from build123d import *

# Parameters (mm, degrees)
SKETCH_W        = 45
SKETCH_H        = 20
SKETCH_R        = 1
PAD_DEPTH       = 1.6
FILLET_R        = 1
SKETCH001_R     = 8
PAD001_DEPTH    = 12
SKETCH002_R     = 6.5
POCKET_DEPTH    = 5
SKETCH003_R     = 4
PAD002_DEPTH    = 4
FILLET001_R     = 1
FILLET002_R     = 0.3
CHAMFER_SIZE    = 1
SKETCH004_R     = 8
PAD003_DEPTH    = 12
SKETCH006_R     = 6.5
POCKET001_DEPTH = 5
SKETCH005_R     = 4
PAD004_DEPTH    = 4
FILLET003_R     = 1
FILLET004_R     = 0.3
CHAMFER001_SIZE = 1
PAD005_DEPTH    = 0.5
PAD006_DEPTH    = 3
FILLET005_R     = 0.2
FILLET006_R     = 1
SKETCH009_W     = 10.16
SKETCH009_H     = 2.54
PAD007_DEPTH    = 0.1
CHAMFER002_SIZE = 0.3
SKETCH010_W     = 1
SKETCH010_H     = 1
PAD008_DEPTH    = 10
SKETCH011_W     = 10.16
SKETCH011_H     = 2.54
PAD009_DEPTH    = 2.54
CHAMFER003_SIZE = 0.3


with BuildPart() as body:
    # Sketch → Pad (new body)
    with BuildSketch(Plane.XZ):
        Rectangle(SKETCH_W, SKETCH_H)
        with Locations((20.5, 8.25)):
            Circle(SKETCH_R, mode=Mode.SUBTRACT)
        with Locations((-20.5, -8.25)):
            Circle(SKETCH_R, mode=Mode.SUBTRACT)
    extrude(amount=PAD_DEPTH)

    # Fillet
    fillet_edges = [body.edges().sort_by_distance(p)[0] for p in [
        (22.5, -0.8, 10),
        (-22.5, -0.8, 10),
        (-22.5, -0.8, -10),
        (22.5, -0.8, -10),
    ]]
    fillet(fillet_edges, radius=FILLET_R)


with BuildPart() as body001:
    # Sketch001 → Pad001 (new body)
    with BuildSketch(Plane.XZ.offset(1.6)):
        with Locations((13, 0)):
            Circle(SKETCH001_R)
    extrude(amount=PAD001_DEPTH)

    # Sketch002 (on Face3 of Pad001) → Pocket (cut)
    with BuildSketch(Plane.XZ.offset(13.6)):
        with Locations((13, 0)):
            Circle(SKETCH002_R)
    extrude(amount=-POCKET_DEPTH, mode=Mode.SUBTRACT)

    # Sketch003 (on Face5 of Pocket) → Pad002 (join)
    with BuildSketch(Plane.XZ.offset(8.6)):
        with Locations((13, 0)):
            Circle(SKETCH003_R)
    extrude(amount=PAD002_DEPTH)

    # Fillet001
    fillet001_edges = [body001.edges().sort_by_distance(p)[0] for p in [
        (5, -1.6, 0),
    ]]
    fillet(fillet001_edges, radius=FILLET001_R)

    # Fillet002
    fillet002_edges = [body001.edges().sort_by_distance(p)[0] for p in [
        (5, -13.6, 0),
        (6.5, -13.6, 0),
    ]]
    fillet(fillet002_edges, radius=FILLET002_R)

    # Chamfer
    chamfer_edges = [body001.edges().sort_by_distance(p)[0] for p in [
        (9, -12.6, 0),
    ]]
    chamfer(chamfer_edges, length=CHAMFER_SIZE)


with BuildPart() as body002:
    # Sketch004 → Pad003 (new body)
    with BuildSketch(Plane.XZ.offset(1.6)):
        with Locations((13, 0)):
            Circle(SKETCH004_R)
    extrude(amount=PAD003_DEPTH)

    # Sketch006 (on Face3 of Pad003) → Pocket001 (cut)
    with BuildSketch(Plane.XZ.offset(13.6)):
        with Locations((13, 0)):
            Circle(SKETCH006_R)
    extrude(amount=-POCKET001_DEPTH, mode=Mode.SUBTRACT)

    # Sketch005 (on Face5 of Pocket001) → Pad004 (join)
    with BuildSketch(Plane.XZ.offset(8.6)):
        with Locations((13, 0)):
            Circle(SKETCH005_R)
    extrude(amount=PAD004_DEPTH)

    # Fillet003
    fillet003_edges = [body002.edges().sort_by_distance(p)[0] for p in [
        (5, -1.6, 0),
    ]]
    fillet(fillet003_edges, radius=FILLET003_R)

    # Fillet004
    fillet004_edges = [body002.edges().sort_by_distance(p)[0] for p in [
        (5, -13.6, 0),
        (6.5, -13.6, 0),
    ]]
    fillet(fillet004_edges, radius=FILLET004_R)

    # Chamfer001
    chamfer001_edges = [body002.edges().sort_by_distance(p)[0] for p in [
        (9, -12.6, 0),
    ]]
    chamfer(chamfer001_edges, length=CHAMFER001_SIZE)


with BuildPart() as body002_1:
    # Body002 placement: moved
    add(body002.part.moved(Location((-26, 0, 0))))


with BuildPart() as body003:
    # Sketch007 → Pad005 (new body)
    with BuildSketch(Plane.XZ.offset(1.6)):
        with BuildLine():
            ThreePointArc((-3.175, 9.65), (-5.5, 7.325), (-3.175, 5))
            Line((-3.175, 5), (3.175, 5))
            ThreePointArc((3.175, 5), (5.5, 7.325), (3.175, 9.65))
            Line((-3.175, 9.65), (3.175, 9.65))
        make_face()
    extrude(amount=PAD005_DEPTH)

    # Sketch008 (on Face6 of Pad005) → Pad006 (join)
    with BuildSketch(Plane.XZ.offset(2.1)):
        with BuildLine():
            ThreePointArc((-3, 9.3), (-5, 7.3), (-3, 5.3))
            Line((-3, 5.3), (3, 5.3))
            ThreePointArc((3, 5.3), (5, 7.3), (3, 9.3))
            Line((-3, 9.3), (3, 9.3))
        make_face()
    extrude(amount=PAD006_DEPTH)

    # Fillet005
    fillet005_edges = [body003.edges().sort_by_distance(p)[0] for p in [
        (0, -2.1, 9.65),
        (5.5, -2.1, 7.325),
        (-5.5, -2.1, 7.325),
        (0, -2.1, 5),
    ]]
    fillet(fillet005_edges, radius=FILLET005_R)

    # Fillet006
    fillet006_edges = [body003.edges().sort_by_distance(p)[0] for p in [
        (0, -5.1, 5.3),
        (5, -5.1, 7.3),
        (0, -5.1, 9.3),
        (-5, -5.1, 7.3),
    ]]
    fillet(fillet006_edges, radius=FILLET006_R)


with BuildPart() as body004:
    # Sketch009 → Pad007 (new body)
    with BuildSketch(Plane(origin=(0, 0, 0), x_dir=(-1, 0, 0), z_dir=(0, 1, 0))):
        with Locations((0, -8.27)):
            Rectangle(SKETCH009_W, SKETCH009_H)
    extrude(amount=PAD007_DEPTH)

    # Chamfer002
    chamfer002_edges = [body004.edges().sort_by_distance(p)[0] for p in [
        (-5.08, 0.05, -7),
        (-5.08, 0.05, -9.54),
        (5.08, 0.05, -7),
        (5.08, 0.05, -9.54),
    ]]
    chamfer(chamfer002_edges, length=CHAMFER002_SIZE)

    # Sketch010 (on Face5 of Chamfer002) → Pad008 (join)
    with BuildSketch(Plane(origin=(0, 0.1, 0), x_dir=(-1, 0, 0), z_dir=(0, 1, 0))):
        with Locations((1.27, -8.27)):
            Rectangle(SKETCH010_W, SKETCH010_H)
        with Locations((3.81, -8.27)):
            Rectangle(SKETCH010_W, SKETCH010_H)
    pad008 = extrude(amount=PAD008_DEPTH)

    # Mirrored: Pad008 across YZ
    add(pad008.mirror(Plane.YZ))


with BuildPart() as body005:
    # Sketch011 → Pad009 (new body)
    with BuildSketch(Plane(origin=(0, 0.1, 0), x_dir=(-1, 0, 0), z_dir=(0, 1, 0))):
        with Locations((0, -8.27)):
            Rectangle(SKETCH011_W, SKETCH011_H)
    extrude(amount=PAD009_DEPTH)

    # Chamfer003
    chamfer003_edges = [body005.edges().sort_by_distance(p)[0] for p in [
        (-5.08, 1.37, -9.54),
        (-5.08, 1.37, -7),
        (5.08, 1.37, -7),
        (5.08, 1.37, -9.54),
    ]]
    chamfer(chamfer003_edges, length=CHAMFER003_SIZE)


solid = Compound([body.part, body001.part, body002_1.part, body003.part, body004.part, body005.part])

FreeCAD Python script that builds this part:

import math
import FreeCAD as App
import Part
import Sketcher

V = App.Vector


def edges_at(feature, points):
    """Names of the edges that pass closest to the given points."""
    edges = feature.Shape.Edges
    near = lambda p: min(range(len(edges)), key=lambda i: edges[i].distToShape(Part.Vertex(*p))[0])
    return sorted({f"Edge{near(p) + 1}" for p in points})

doc = App.newDocument("Part")
body = doc.addObject("PartDesign::Body", "Body")

# Sketch on XZ plane
sketch1 = doc.addObject("Sketcher::SketchObject", "Sketch")
body.addObject(sketch1)
sketch1.AttachmentSupport = (doc.XZ_Plane, [""])
sketch1.MapMode = "FlatFace"
sketch1.addGeometry(Part.LineSegment(V(-22.5, 10, 0), V(-22.5, -10, 0)), False)
sketch1.addGeometry(Part.LineSegment(V(-22.5, -10, 0), V(22.5, -10, 0)), False)
sketch1.addGeometry(Part.LineSegment(V(22.5, -10, 0), V(22.5, 10, 0)), False)
sketch1.addGeometry(Part.LineSegment(V(22.5, 10, 0), V(-22.5, 10, 0)), False)
sketch1.addGeometry(Part.Circle(V(-20.5, -8.2, 0), V(0, 0, 1), 1), False)
sketch1.addGeometry(Part.Circle(V(20.5, 8.2, 0), V(0, 0, 1), 1), False)
sketch1.addConstraint(Sketcher.Constraint("Coincident", 0, 2, 1, 1))
sketch1.addConstraint(Sketcher.Constraint("Coincident", 1, 2, 2, 1))
sketch1.addConstraint(Sketcher.Constraint("Coincident", 2, 2, 3, 1))
sketch1.addConstraint(Sketcher.Constraint("Coincident", 3, 2, 0, 1))
sketch1.addConstraint(Sketcher.Constraint("Vertical", 0))
sketch1.addConstraint(Sketcher.Constraint("Horizontal", 1))
sketch1.addConstraint(Sketcher.Constraint("Vertical", 2))
sketch1.addConstraint(Sketcher.Constraint("Horizontal", 3))
sketch1.addConstraint(Sketcher.Constraint("Equal", 4, 5))
sketch1.addConstraint(Sketcher.Constraint("Symmetric", 4, 3, 5, 3, -1, 1))
sketch1.addConstraint(Sketcher.Constraint("Symmetric", 0, 2, 2, 2, -1, 1))
sketch1.addConstraint(Sketcher.Constraint("Diameter", 4, 2.0))
sketch1.addConstraint(Sketcher.Constraint("DistanceX", 1, 1, 1, 2, 45.0))
sketch1.addConstraint(Sketcher.Constraint("DistanceY", 0, 2, 0, 1, 20.0))
sketch1.addConstraint(Sketcher.Constraint("DistanceX", 4, 3, 5, 3, 41.0))
sketch1.addConstraint(Sketcher.Constraint("DistanceY", 4, 3, 5, 3, 16.5))
pad1 = doc.addObject("PartDesign::Pad", "Pad")
body.addObject(pad1)
pad1.Profile = sketch1
pad1.Length = 1.6
doc.recompute()

fillet = doc.addObject("PartDesign::Fillet", "Fillet")
body.addObject(fillet)
fillet.Base = (pad1, edges_at(pad1, [
    (22.5, -0.8, 10),
    (-22.5, -0.8, 10),
    (-22.5, -0.8, -10),
    (22.5, -0.8, -10),
]))
fillet.Radius = 1
body2 = doc.addObject("PartDesign::Body", "Body001")

# Sketch on XZ plane
sketch2 = doc.addObject("Sketcher::SketchObject", "Sketch001")
body2.addObject(sketch2)
sketch2.AttachmentSupport = (doc.getObject("XZ_Plane001"), [""])
sketch2.MapMode = "FlatFace"
sketch2.AttachmentOffset = App.Placement(V(0, 0, 1.6), App.Rotation())
sketch2.addGeometry(Part.Circle(V(13, 0, 0), V(0, 0, 1), 8), False)
sketch2.addConstraint(Sketcher.Constraint("PointOnObject", 0, 3, -1))
sketch2.addConstraint(Sketcher.Constraint("Diameter", 0, 16.0))
sketch2.addConstraint(Sketcher.Constraint("DistanceX", -1, 1, 0, 3, 13.0))
pad2 = doc.addObject("PartDesign::Pad", "Pad001")
body2.addObject(pad2)
pad2.Profile = sketch2
pad2.Length = 12

# Sketch on XZ plane
sketch3 = doc.addObject("Sketcher::SketchObject", "Sketch002")
body2.addObject(sketch3)
sketch3.AttachmentSupport = (doc.getObject("XZ_Plane001"), [""])
sketch3.MapMode = "FlatFace"
sketch3.AttachmentOffset = App.Placement(V(0, 0, 13.6), App.Rotation())
sketch3.addGeometry(Part.Circle(V(13, 0, 0), V(0, 0, 1), 6), False)
sketch3.addConstraint(Sketcher.Constraint("PointOnObject", 0, 3, -1))
sketch3.addConstraint(Sketcher.Constraint("Diameter", 0, 13.0))
sketch3.addConstraint(Sketcher.Constraint("DistanceX", -1, 1, 0, 3, 13.0))
pocket1 = doc.addObject("PartDesign::Pocket", "Pocket")
body2.addObject(pocket1)
pocket1.Profile = sketch3
pocket1.Length = 5

# Sketch on XZ plane
sketch4 = doc.addObject("Sketcher::SketchObject", "Sketch003")
body2.addObject(sketch4)
sketch4.AttachmentSupport = (doc.getObject("XZ_Plane001"), [""])
sketch4.MapMode = "FlatFace"
sketch4.AttachmentOffset = App.Placement(V(0, 0, 8.6), App.Rotation())
sketch4.addGeometry(Part.Circle(V(13, 0, 0), V(0, 0, 1), 4), False)
sketch4.addConstraint(Sketcher.Constraint("PointOnObject", 0, 3, -1))
sketch4.addConstraint(Sketcher.Constraint("Diameter", 0, 8.0))
sketch4.addConstraint(Sketcher.Constraint("DistanceX", -1, 1, 0, 3, 13.0))
pad3 = doc.addObject("PartDesign::Pad", "Pad002")
body2.addObject(pad3)
pad3.Profile = sketch4
pad3.Length = 4
doc.recompute()

fillet2 = doc.addObject("PartDesign::Fillet", "Fillet001")
body2.addObject(fillet2)
fillet2.Base = (pad3, edges_at(pad3, [(5, -1.6, 0)]))
fillet2.Radius = 1
doc.recompute()

fillet3 = doc.addObject("PartDesign::Fillet", "Fillet002")
body2.addObject(fillet3)
fillet3.Base = (fillet2, edges_at(fillet2, [(5, -13.6, 0), (6.5, -13.6, 0)]))
fillet3.Radius = 0.3
doc.recompute()

chamfer = doc.addObject("PartDesign::Chamfer", "Chamfer")
body2.addObject(chamfer)
chamfer.Base = (fillet3, edges_at(fillet3, [(9, -12.6, 0)]))
chamfer.Size = 1
body3 = doc.addObject("PartDesign::Body", "Body002")

# Sketch on XZ plane
sketch5 = doc.addObject("Sketcher::SketchObject", "Sketch004")
body3.addObject(sketch5)
sketch5.AttachmentSupport = (doc.getObject("XZ_Plane002"), [""])
sketch5.MapMode = "FlatFace"
sketch5.AttachmentOffset = App.Placement(V(0, 0, 1.6), App.Rotation())
sketch5.addGeometry(Part.Circle(V(13, 0, 0), V(0, 0, 1), 8), False)
sketch5.addConstraint(Sketcher.Constraint("PointOnObject", 0, 3, -1))
sketch5.addConstraint(Sketcher.Constraint("Diameter", 0, 16.0))
sketch5.addConstraint(Sketcher.Constraint("DistanceX", -1, 1, 0, 3, 13.0))
pad4 = doc.addObject("PartDesign::Pad", "Pad003")
body3.addObject(pad4)
pad4.Profile = sketch5
pad4.Length = 12

# Sketch on XZ plane
sketch6 = doc.addObject("Sketcher::SketchObject", "Sketch005")
body3.addObject(sketch6)
sketch6.AttachmentSupport = (doc.getObject("XZ_Plane002"), [""])
sketch6.MapMode = "FlatFace"
sketch6.AttachmentOffset = App.Placement(V(0, 0, 13.6), App.Rotation())
sketch6.addGeometry(Part.Circle(V(13, 0, 0), V(0, 0, 1), 6), False)
sketch6.addConstraint(Sketcher.Constraint("PointOnObject", 0, 3, -1))
sketch6.addConstraint(Sketcher.Constraint("Diameter", 0, 13.0))
sketch6.addConstraint(Sketcher.Constraint("DistanceX", -1, 1, 0, 3, 13.0))
pocket2 = doc.addObject("PartDesign::Pocket", "Pocket001")
body3.addObject(pocket2)
pocket2.Profile = sketch6
pocket2.Length = 5

# Sketch on XZ plane
sketch7 = doc.addObject("Sketcher::SketchObject", "Sketch006")
body3.addObject(sketch7)
sketch7.AttachmentSupport = (doc.getObject("XZ_Plane002"), [""])
sketch7.MapMode = "FlatFace"
sketch7.AttachmentOffset = App.Placement(V(0, 0, 8.6), App.Rotation())
sketch7.addGeometry(Part.Circle(V(13, 0, 0), V(0, 0, 1), 4), False)
sketch7.addConstraint(Sketcher.Constraint("PointOnObject", 0, 3, -1))
sketch7.addConstraint(Sketcher.Constraint("Diameter", 0, 8.0))
sketch7.addConstraint(Sketcher.Constraint("DistanceX", -1, 1, 0, 3, 13.0))
pad5 = doc.addObject("PartDesign::Pad", "Pad004")
body3.addObject(pad5)
pad5.Profile = sketch7
pad5.Length = 4
doc.recompute()

fillet4 = doc.addObject("PartDesign::Fillet", "Fillet003")
body3.addObject(fillet4)
fillet4.Base = (pad5, edges_at(pad5, [(5, -1.6, 0)]))
fillet4.Radius = 1
doc.recompute()

fillet5 = doc.addObject("PartDesign::Fillet", "Fillet004")
body3.addObject(fillet5)
fillet5.Base = (fillet4, edges_at(fillet4, [(5, -13.6, 0), (6.5, -13.6, 0)]))
fillet5.Radius = 0.3
doc.recompute()

chamfer2 = doc.addObject("PartDesign::Chamfer", "Chamfer001")
body3.addObject(chamfer2)
chamfer2.Base = (fillet5, edges_at(fillet5, [(9, -12.6, 0)]))
chamfer2.Size = 1
body4 = doc.addObject("PartDesign::Body", "Body003")
doc.recompute()

body3.Placement = App.Placement(V(-26, 0, 0), App.Rotation(V(0, 0, 1), 0))
boolean = doc.addObject("PartDesign::Boolean", "Boolean")
body4.addObject(boolean)
boolean.Type = "Fuse"
boolean.addObjects([body3])
body5 = doc.addObject("PartDesign::Body", "Body004")

# Sketch on XZ plane
sketch8 = doc.addObject("Sketcher::SketchObject", "Sketch007")
body5.addObject(sketch8)
sketch8.AttachmentSupport = (doc.getObject("XZ_Plane004"), [""])
sketch8.MapMode = "FlatFace"
sketch8.AttachmentOffset = App.Placement(V(0, 0, 1.6), App.Rotation())
sketch8.addGeometry(Part.ArcOfCircle(Part.Circle(V(-3.2, 7.3, 0), V(0, 0, 1), 2.3), math.radians(90), math.radians(270)), False)
sketch8.addGeometry(Part.LineSegment(V(-3.2, 5, 0), V(3.2, 5, 0)), False)
sketch8.addGeometry(Part.ArcOfCircle(Part.Circle(V(3.2, 7.3, 0), V(0, 0, 1), 2.3), math.radians(-90), math.radians(90)), False)
sketch8.addGeometry(Part.LineSegment(V(3.2, 9.7, 0), V(-3.2, 9.7, 0)), False)
sketch8.addConstraint(Sketcher.Constraint("Tangent", 0, 2, 1, 1))
sketch8.addConstraint(Sketcher.Constraint("Tangent", 1, 2, 2, 1))
sketch8.addConstraint(Sketcher.Constraint("Tangent", 2, 2, 3, 1))
sketch8.addConstraint(Sketcher.Constraint("Tangent", 3, 2, 0, 1))
sketch8.addConstraint(Sketcher.Constraint("Horizontal", 1))
sketch8.addConstraint(Sketcher.Constraint("Horizontal", 3))
sketch8.addConstraint(Sketcher.Constraint("DistanceY", -1, 1, 0, 2, 5.0))
sketch8.addConstraint(Sketcher.Constraint("Radius", 0, 2.325))
sketch8.addConstraint(Sketcher.Constraint("DistanceX", 1, 1, 1, 2, 6.35))
sketch8.addConstraint(Sketcher.Constraint("DistanceX", 0, 3, -1, 1, 3.175))
pad6 = doc.addObject("PartDesign::Pad", "Pad005")
body5.addObject(pad6)
pad6.Profile = sketch8
pad6.Length = 0.5

# Sketch on XZ plane
sketch9 = doc.addObject("Sketcher::SketchObject", "Sketch008")
body5.addObject(sketch9)
sketch9.AttachmentSupport = (doc.getObject("XZ_Plane004"), [""])
sketch9.MapMode = "FlatFace"
sketch9.AttachmentOffset = App.Placement(V(0, 0, 2.1), App.Rotation())
sketch9.addGeometry(Part.ArcOfCircle(Part.Circle(V(-3, 7.3, 0), V(0, 0, 1), 2), math.radians(90), math.radians(270)), False)
sketch9.addGeometry(Part.LineSegment(V(-3, 5.3, 0), V(3, 5.3, 0)), False)
sketch9.addGeometry(Part.ArcOfCircle(Part.Circle(V(3, 7.3, 0), V(0, 0, 1), 2), math.radians(-90), math.radians(90)), False)
sketch9.addGeometry(Part.LineSegment(V(3, 9.3, 0), V(-3, 9.3, 0)), False)
sketch9.addConstraint(Sketcher.Constraint("Tangent", 0, 2, 1, 1))
sketch9.addConstraint(Sketcher.Constraint("Tangent", 1, 2, 2, 1))
sketch9.addConstraint(Sketcher.Constraint("Tangent", 2, 2, 3, 1))
sketch9.addConstraint(Sketcher.Constraint("Tangent", 3, 2, 0, 1))
sketch9.addConstraint(Sketcher.Constraint("Horizontal", 1))
sketch9.addConstraint(Sketcher.Constraint("Horizontal", 3))
sketch9.addConstraint(Sketcher.Constraint("Radius", 0, 2.0))
sketch9.addConstraint(Sketcher.Constraint("DistanceX", 1, 1, 1, 2, 6.0))
sketch9.addConstraint(Sketcher.Constraint("DistanceX", 0, 3, -1, 1, 3.0))
sketch9.addConstraint(Sketcher.Constraint("DistanceY", -1, 1, 0, 3, 7.3))
pad7 = doc.addObject("PartDesign::Pad", "Pad006")
body5.addObject(pad7)
pad7.Profile = sketch9
pad7.Length = 3
doc.recompute()

fillet6 = doc.addObject("PartDesign::Fillet", "Fillet005")
body5.addObject(fillet6)
fillet6.Base = (pad7, edges_at(pad7, [
    (0, -2.1, 9.65),
    (5.5, -2.1, 7.325),
    (-5.5, -2.1, 7.325),
    (0, -2.1, 5),
]))
fillet6.Radius = 0.2
doc.recompute()

fillet7 = doc.addObject("PartDesign::Fillet", "Fillet006")
body5.addObject(fillet7)
fillet7.Base = (fillet6, edges_at(fillet6, [
    (0, -5.1, 5.3),
    (5, -5.1, 7.3),
    (0, -5.1, 9.3),
    (-5, -5.1, 7.3),
]))
fillet7.Radius = 1
body6 = doc.addObject("PartDesign::Body", "Body005")

# Sketch on XZ plane
sketch10 = doc.addObject("Sketcher::SketchObject", "Sketch009")
body6.addObject(sketch10)
sketch10.AttachmentSupport = (doc.getObject("XZ_Plane005"), [""])
sketch10.MapMode = "FlatFace"
sketch10.addGeometry(Part.LineSegment(V(5.1, -7, 0), V(5.1, -9.5, 0)), False)
sketch10.addGeometry(Part.LineSegment(V(5.1, -9.5, 0), V(-5.1, -9.5, 0)), False)
sketch10.addGeometry(Part.LineSegment(V(-5.1, -9.5, 0), V(-5.1, -7, 0)), False)
sketch10.addGeometry(Part.LineSegment(V(-5.1, -7, 0), V(5.1, -7, 0)), False)
sketch10.addConstraint(Sketcher.Constraint("Coincident", 0, 2, 1, 1))
sketch10.addConstraint(Sketcher.Constraint("Coincident", 1, 2, 2, 1))
sketch10.addConstraint(Sketcher.Constraint("Coincident", 2, 2, 3, 1))
sketch10.addConstraint(Sketcher.Constraint("Coincident", 3, 2, 0, 1))
sketch10.addConstraint(Sketcher.Constraint("Vertical", 0))
sketch10.addConstraint(Sketcher.Constraint("Horizontal", 1))
sketch10.addConstraint(Sketcher.Constraint("Vertical", 2))
sketch10.addConstraint(Sketcher.Constraint("Horizontal", 3))
sketch10.addConstraint(Sketcher.Constraint("DistanceY", 2, 2, -1, 1, 7.0))
sketch10.addConstraint(Sketcher.Constraint("DistanceX", 1, 2, 1, 1, 10.16))
sketch10.addConstraint(Sketcher.Constraint("DistanceY", 0, 2, 0, 1, 2.54))
sketch10.addConstraint(Sketcher.Constraint("DistanceX", -1, 1, 0, 2, 5.08))
pad8 = doc.addObject("PartDesign::Pad", "Pad007")
body6.addObject(pad8)
pad8.Profile = sketch10
pad8.Length = 0.1
pad8.Reversed = True
doc.recompute()

chamfer3 = doc.addObject("PartDesign::Chamfer", "Chamfer002")
body6.addObject(chamfer3)
chamfer3.Base = (pad8, edges_at(pad8, [
    (-5.08, 0.05, -7),
    (-5.08, 0.05, -9.54),
    (5.08, 0.05, -7),
    (5.08, 0.05, -9.54),
]))
chamfer3.Size = 0.3

# Sketch on XZ plane
sketch11 = doc.addObject("Sketcher::SketchObject", "Sketch010")
body6.addObject(sketch11)
sketch11.AttachmentSupport = (doc.getObject("XZ_Plane005"), [""])
sketch11.MapMode = "FlatFace"
sketch11.AttachmentOffset = App.Placement(V(0, 0, -0.1), App.Rotation())
sketch11.addGeometry(Part.LineSegment(V(-0.8, -7.8, 0), V(-0.8, -8.8, 0)), False)
sketch11.addGeometry(Part.LineSegment(V(-0.8, -8.8, 0), V(-1.8, -8.8, 0)), False)
sketch11.addGeometry(Part.LineSegment(V(-1.8, -8.8, 0), V(-1.8, -7.8, 0)), False)
sketch11.addGeometry(Part.LineSegment(V(-1.8, -7.8, 0), V(-0.8, -7.8, 0)), False)
sketch11.addGeometry(Part.LineSegment(V(-3.3, -7.8, 0), V(-3.3, -8.8, 0)), False)
sketch11.addGeometry(Part.LineSegment(V(-3.3, -8.8, 0), V(-4.3, -8.8, 0)), False)
sketch11.addGeometry(Part.LineSegment(V(-4.3, -8.8, 0), V(-4.3, -7.8, 0)), False)
sketch11.addGeometry(Part.LineSegment(V(-4.3, -7.8, 0), V(-3.3, -7.8, 0)), False)
sketch11.addConstraint(Sketcher.Constraint("Coincident", 0, 2, 1, 1))
sketch11.addConstraint(Sketcher.Constraint("Coincident", 1, 2, 2, 1))
sketch11.addConstraint(Sketcher.Constraint("Coincident", 2, 2, 3, 1))
sketch11.addConstraint(Sketcher.Constraint("Coincident", 3, 2, 0, 1))
sketch11.addConstraint(Sketcher.Constraint("Coincident", 4, 2, 5, 1))
sketch11.addConstraint(Sketcher.Constraint("Coincident", 5, 2, 6, 1))
sketch11.addConstraint(Sketcher.Constraint("Coincident", 6, 2, 7, 1))
sketch11.addConstraint(Sketcher.Constraint("Coincident", 7, 2, 4, 1))
sketch11.addConstraint(Sketcher.Constraint("Vertical", 0))
sketch11.addConstraint(Sketcher.Constraint("Horizontal", 1))
sketch11.addConstraint(Sketcher.Constraint("Vertical", 2))
sketch11.addConstraint(Sketcher.Constraint("Horizontal", 3))
sketch11.addConstraint(Sketcher.Constraint("Vertical", 4))
sketch11.addConstraint(Sketcher.Constraint("Horizontal", 5))
sketch11.addConstraint(Sketcher.Constraint("Vertical", 6))
sketch11.addConstraint(Sketcher.Constraint("Horizontal", 7))
sketch11.addConstraint(Sketcher.Constraint("Horizontal", 1, 2, 4, 2))
sketch11.addConstraint(Sketcher.Constraint("Horizontal", 3, 2, 6, 2))
sketch11.addConstraint(Sketcher.Constraint("Equal", 3, 5))
sketch11.addConstraint(Sketcher.Constraint("Equal", 7, 0))
sketch11.addConstraint(Sketcher.Constraint("DistanceX", 1, 2, 1, 1, 1.0))
sketch11.addConstraint(Sketcher.Constraint("DistanceX", 0, 2, -1, 1, 0.77))
sketch11.addConstraint(Sketcher.Constraint("DistanceY", 0, 2, -1, 1, 8.77))
sketch11.addConstraint(Sketcher.Constraint("DistanceX", 4, 2, -1, 1, 3.31))
pad9 = doc.addObject("PartDesign::Pad", "Pad008")
body6.addObject(pad9)
pad9.Profile = sketch11
pad9.Length = 10
pad9.Reversed = True
doc.recompute()

mirrored = doc.addObject("PartDesign::Mirrored", "Mirrored")
body6.addObject(mirrored)
mirrored.Originals = [pad9]
mirrored.MirrorPlane = (doc.getObject("YZ_Plane005"), [""])
body6.Tip = mirrored
body7 = doc.addObject("PartDesign::Body", "Body006")

# Sketch on XZ plane
sketch12 = doc.addObject("Sketcher::SketchObject", "Sketch011")
body7.addObject(sketch12)
sketch12.AttachmentSupport = (doc.getObject("XZ_Plane006"), [""])
sketch12.MapMode = "FlatFace"
sketch12.AttachmentOffset = App.Placement(V(0, 0, -0.1), App.Rotation())
sketch12.addGeometry(Part.LineSegment(V(5.1, -7, 0), V(5.1, -9.5, 0)), False)
sketch12.addGeometry(Part.LineSegment(V(5.1, -9.5, 0), V(-5.1, -9.5, 0)), False)
sketch12.addGeometry(Part.LineSegment(V(-5.1, -9.5, 0), V(-5.1, -7, 0)), False)
sketch12.addGeometry(Part.LineSegment(V(-5.1, -7, 0), V(5.1, -7, 0)), False)
sketch12.addConstraint(Sketcher.Constraint("Coincident", 0, 2, 1, 1))
sketch12.addConstraint(Sketcher.Constraint("Coincident", 1, 2, 2, 1))
sketch12.addConstraint(Sketcher.Constraint("Coincident", 2, 2, 3, 1))
sketch12.addConstraint(Sketcher.Constraint("Coincident", 3, 2, 0, 1))
sketch12.addConstraint(Sketcher.Constraint("Vertical", 0))
sketch12.addConstraint(Sketcher.Constraint("Horizontal", 1))
sketch12.addConstraint(Sketcher.Constraint("Vertical", 2))
sketch12.addConstraint(Sketcher.Constraint("Horizontal", 3))
sketch12.addConstraint(Sketcher.Constraint("DistanceY", 2, 2, -1, 1, 7.0))
sketch12.addConstraint(Sketcher.Constraint("DistanceX", 1, 2, 1, 1, 10.16))
sketch12.addConstraint(Sketcher.Constraint("DistanceY", 0, 2, 0, 1, 2.54))
sketch12.addConstraint(Sketcher.Constraint("DistanceX", -1, 1, 0, 2, 5.08))
pad10 = doc.addObject("PartDesign::Pad", "Pad009")
body7.addObject(pad10)
pad10.Profile = sketch12
pad10.Length = 2.54
pad10.Reversed = True
doc.recompute()

chamfer4 = doc.addObject("PartDesign::Chamfer", "Chamfer003")
body7.addObject(chamfer4)
chamfer4.Base = (pad10, edges_at(pad10, [
    (-5.08, 1.37, -9.54),
    (-5.08, 1.37, -7),
    (5.08, 1.37, -7),
    (5.08, 1.37, -9.54),
]))
chamfer4.Size = 0.3

doc.recompute()
